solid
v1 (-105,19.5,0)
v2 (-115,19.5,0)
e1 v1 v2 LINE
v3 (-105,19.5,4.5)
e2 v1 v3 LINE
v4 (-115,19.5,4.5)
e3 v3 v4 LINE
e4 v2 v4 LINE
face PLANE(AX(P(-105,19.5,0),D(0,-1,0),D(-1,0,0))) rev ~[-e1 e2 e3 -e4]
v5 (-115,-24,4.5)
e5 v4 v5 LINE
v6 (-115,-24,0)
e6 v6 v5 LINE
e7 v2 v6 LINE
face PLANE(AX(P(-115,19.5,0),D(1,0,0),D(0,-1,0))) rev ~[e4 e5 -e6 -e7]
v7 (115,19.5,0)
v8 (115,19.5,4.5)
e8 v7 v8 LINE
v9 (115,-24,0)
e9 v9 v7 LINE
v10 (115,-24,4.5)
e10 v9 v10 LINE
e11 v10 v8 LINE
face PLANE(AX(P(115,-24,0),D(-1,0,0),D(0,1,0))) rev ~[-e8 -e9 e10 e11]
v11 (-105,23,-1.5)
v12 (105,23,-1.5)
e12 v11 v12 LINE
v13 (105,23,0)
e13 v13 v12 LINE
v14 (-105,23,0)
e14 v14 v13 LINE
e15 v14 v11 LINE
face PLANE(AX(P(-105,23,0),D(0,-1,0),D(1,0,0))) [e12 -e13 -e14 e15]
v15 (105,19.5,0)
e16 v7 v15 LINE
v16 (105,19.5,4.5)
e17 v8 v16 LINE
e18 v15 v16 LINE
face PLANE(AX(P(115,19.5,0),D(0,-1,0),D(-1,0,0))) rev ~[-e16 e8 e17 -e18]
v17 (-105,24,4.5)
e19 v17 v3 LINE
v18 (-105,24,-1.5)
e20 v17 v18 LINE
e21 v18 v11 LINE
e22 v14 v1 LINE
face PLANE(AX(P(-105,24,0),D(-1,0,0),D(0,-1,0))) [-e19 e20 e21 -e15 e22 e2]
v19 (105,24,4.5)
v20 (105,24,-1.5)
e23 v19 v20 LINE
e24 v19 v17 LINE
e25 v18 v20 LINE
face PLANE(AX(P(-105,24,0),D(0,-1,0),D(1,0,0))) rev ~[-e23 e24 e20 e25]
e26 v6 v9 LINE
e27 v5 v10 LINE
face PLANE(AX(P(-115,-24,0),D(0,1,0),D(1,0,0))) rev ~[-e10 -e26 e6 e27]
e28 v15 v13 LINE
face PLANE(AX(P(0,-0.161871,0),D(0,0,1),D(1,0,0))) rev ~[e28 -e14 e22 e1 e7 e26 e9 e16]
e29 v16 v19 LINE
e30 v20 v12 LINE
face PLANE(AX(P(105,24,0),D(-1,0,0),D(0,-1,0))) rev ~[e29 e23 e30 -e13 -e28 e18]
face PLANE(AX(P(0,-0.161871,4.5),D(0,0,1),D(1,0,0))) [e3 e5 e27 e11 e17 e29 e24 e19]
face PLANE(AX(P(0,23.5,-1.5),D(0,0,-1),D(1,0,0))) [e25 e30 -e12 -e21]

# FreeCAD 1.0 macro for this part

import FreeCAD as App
import Part
import Sketcher
Q = App.Units.Quantity


def add_polygon(sketch, points):
    """Adds a closed chain of lines whose ends are joined by coincident constraints."""
    first, n = sketch.GeometryCount, len(points)
    for a, b in zip(points, points[1:] + points[:1]):
        sketch.addGeometry(Part.LineSegment(App.Vector(*a, 0), App.Vector(*b, 0)), False)
    for i in range(n):
        sketch.addConstraint(Sketcher.Constraint("Coincident", first + i, 2, first + (i + 1) % n, 1))

doc = App.newDocument("Part")
body = doc.addObject("PartDesign::Body", "Body")

sketch1 = body.newObject("Sketcher::SketchObject", "Sketch")
sketch1.AttachmentSupport = (doc.getObject("XY_Plane"), [""])
sketch1.MapMode = "FlatFace"
add_polygon(sketch1, [(-115, -24), (115, -24), (115, 19.5), (105, 19.5), (105, 24), (-105, 24), (-105, 19.5), (-115, 19.5)])
sketch1.addConstraint(Sketcher.Constraint("Horizontal", 0))
sketch1.addConstraint(Sketcher.Constraint("Vertical", 1))
sketch1.addConstraint(Sketcher.Constraint("Horizontal", 2))
sketch1.addConstraint(Sketcher.Constraint("Vertical", 3))
sketch1.addConstraint(Sketcher.Constraint("Horizontal", 4))
sketch1.addConstraint(Sketcher.Constraint("Vertical", 5))
sketch1.addConstraint(Sketcher.Constraint("Horizontal", 6))
sketch1.addConstraint(Sketcher.Constraint("Vertical", 7))
sketch1.addConstraint(Sketcher.Constraint("Symmetric", 2, 2, 5, 2, -2))
sketch1.addConstraint(Sketcher.Constraint("Equal", 2, 6))
sketch1.addConstraint(Sketcher.Constraint("DistanceX", 0, 1, 0, 2, Q("230 mm")))
sketch1.addConstraint(Sketcher.Constraint("DistanceX", 2, 2, 2, 1, Q("10 mm")))
sketch1.addConstraint(Sketcher.Constraint("DistanceY", 1, 1, 1, 2, Q("43.5 mm")))
sketch1.addConstraint(Sketcher.Constraint("DistanceY", 3, 1, 3, 2, Q("4.5 mm")))
sketch1.addConstraint(Sketcher.Constraint("DistanceY", 0, 2, -1, 1, Q("24 mm")))
pad1 = body.newObject("PartDesign::Pad", "Pad")
pad1.Profile = sketch1
pad1.Length = 4.5

sketch2 = body.newObject("Sketcher::SketchObject", "Sketch001")
sketch2.AttachmentSupport = (doc.getObject("XY_Plane"), [""])
sketch2.MapMode = "FlatFace"
add_polygon(sketch2, [(-105, 23), (-105, 24), (105, 24), (105, 23)])
sketch2.addConstraint(Sketcher.Constraint("Vertical", 0))
sketch2.addConstraint(Sketcher.Constraint("Horizontal", 1))
sketch2.addConstraint(Sketcher.Constraint("Vertical", 2))
sketch2.addConstraint(Sketcher.Constraint("Horizontal", 3))
sketch2.addConstraint(Sketcher.Constraint("DistanceX", 1, 1, 1, 2, Q("210 mm")))
sketch2.addConstraint(Sketcher.Constraint("DistanceY", 0, 1, 0, 2, Q("1 mm")))
sketch2.addConstraint(Sketcher.Constraint("DistanceX", 0, 2, -1, 1, Q("105 mm")))
sketch2.addConstraint(Sketcher.Constraint("DistanceY", -1, 1, 0, 2, Q("24 mm")))
pad2 = body.newObject("PartDesign::Pad", "Pad001")
pad2.Profile = sketch2
pad2.Length = 1.5
pad2.Reversed = True

doc.recompute()
